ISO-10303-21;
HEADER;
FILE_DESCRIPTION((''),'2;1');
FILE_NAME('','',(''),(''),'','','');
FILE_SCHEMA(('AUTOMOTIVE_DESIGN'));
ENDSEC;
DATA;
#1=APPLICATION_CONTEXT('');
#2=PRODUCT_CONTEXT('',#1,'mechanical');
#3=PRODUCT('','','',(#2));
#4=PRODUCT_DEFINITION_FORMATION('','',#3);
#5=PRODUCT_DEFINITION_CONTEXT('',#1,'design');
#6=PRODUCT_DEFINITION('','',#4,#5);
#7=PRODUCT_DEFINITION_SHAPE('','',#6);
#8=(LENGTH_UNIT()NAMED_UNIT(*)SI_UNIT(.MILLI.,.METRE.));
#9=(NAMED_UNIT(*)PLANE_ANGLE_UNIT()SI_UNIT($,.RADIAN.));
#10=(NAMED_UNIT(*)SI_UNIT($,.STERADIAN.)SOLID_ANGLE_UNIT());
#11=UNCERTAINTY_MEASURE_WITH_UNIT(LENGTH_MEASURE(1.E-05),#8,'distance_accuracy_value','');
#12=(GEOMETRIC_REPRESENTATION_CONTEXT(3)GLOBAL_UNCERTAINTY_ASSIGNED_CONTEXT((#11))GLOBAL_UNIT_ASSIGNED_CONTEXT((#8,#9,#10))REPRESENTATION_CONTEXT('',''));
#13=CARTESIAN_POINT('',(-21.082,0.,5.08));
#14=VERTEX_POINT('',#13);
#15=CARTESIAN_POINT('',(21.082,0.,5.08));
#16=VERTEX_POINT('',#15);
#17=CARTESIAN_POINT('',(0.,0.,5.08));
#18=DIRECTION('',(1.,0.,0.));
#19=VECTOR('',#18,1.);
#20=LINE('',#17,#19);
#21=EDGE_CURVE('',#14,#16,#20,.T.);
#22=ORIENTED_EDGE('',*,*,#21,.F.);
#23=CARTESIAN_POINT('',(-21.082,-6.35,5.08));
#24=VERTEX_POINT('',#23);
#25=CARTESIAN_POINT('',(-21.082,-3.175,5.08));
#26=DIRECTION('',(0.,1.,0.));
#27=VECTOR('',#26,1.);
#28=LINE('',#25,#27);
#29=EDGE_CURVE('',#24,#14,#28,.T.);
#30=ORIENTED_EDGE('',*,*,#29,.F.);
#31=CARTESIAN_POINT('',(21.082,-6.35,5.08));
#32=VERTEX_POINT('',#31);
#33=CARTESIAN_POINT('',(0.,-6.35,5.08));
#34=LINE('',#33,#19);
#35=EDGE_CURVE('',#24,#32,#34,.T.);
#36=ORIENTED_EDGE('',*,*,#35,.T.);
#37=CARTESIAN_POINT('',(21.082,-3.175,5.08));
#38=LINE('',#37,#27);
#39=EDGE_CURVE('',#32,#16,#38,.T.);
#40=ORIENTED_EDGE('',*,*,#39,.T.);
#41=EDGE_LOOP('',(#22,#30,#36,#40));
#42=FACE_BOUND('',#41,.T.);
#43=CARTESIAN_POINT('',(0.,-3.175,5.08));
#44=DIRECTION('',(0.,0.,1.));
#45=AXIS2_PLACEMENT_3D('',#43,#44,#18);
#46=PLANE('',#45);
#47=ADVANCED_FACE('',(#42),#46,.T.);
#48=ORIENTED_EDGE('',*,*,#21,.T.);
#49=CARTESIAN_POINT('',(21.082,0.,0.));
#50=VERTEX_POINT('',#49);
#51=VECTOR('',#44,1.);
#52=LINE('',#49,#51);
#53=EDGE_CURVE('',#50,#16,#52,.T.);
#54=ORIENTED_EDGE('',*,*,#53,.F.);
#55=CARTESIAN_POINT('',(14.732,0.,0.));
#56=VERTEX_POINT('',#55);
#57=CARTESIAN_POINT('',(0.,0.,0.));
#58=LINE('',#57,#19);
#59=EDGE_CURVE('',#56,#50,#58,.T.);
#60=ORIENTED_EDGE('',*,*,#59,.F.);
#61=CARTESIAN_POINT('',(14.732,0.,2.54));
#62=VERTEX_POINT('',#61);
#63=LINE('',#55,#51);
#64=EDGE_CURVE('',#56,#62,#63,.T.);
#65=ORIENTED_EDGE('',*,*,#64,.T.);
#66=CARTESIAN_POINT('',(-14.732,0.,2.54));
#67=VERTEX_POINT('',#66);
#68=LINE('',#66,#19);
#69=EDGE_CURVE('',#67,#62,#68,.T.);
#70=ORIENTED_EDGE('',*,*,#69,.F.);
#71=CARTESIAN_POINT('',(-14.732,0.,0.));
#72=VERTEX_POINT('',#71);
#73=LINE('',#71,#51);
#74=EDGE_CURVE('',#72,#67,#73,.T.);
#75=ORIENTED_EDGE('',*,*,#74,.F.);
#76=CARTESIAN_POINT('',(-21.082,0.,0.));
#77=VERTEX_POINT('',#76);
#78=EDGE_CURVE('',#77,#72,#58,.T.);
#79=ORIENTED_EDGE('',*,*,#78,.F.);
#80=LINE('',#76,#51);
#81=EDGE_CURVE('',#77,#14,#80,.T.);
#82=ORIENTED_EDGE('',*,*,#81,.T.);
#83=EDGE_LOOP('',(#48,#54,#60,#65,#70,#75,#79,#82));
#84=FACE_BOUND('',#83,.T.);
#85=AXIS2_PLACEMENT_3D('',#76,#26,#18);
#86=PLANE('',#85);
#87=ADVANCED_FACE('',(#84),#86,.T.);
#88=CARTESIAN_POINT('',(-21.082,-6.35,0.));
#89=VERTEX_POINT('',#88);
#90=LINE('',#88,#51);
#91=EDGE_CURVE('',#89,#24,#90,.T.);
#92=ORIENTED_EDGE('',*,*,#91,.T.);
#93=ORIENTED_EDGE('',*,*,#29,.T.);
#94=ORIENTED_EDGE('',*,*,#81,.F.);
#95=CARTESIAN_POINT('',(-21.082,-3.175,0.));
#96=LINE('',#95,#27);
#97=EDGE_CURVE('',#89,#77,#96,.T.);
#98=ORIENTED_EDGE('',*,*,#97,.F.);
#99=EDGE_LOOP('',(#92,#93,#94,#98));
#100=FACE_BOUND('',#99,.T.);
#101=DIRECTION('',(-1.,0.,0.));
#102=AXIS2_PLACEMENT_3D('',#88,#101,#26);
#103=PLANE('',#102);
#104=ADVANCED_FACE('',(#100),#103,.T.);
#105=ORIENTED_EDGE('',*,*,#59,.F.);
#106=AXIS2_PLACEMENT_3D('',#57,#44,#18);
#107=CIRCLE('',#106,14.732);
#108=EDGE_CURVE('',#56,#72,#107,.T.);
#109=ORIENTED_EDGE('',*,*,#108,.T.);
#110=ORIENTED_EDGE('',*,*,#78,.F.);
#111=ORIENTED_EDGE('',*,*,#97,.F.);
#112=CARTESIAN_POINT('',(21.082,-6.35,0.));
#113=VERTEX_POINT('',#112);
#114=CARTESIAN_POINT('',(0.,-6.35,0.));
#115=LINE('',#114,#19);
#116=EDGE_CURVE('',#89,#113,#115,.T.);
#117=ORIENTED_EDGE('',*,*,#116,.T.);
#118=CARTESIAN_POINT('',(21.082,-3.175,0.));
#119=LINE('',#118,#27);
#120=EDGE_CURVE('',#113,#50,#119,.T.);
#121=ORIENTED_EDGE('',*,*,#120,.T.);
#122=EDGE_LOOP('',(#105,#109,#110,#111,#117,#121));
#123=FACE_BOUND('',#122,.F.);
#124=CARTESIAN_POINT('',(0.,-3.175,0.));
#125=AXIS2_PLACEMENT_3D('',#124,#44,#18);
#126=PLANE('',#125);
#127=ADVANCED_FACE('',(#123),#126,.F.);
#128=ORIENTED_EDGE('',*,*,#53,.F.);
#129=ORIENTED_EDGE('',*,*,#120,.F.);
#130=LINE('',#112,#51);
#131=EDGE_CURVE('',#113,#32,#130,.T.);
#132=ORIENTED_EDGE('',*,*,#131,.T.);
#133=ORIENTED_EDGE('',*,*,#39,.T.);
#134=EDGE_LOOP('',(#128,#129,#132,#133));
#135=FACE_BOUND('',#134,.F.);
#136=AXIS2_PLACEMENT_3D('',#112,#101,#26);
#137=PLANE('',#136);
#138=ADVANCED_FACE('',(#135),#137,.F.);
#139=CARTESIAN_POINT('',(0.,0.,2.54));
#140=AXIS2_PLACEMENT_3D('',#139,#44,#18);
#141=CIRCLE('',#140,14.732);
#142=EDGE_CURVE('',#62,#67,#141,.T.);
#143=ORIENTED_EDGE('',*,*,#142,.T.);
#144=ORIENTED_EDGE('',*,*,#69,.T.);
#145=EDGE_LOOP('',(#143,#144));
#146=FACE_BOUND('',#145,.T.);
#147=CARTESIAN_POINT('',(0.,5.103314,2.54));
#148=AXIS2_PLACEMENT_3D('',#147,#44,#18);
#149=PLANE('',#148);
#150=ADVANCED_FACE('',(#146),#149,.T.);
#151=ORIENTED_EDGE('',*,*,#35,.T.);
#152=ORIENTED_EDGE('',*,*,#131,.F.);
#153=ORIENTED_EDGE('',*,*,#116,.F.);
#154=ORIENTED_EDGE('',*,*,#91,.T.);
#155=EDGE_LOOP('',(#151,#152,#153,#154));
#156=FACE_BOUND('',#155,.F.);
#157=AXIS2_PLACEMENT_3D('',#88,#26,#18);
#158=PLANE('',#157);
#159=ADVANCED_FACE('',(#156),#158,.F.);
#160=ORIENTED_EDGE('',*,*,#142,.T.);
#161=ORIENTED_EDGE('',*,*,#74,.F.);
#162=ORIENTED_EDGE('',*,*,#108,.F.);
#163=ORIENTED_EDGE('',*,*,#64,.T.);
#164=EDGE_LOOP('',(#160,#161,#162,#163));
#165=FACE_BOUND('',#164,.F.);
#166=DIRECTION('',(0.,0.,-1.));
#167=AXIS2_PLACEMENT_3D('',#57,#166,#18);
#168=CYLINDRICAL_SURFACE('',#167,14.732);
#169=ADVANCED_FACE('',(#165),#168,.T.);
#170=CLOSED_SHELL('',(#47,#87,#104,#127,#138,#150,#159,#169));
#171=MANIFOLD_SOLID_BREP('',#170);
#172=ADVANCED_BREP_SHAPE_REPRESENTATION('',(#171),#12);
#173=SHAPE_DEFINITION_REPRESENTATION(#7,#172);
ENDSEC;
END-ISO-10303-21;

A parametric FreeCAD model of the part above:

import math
import FreeCAD as App
import Part
import Sketcher
from FreeCAD import Vector
Q = App.Units.Quantity


def add_polygon(sketch, points):
    """Adds a closed chain of lines whose ends are joined by coincident constraints."""
    first, n = sketch.GeometryCount, len(points)
    for a, b in zip(points, points[1:] + points[:1]):
        sketch.addGeometry(Part.LineSegment(App.Vector(*a, 0), App.Vector(*b, 0)), False)
    for i in range(n):
        sketch.addConstraint(Sketcher.Constraint("Coincident", first + i, 2, first + (i + 1) % n, 1))

doc = App.newDocument("Part")
body = doc.addObject("PartDesign::Body", "Body")

sketch1 = body.newObject("Sketcher::SketchObject", "Sketch")
sketch1.AttachmentSupport = (doc.getObject("XY_Plane"), [""])
sketch1.MapMode = "FlatFace"
sketch1.addGeometry(Part.LineSegment(Vector(-15, 0, 0), Vector(15, 0, 0)), False)
sketch1.addGeometry(Part.ArcOfCircle(Part.Circle(Vector(0, 0, 0), Vector(0, 0, 1), 15), math.radians(0), math.radians(180)), False)
sketch1.addConstraint(Sketcher.Constraint("Coincident", 0, 1, 1, 2))
sketch1.addConstraint(Sketcher.Constraint("Coincident", 1, 1, 0, 2))
sketch1.addConstraint(Sketcher.Constraint("Horizontal", 0))
sketch1.addConstraint(Sketcher.Constraint("Coincident", 1, 3, -1, 1))
sketch1.addConstraint(Sketcher.Constraint("PointOnObject", 0, 1, -1))
sketch1.addConstraint(Sketcher.Constraint("Radius", 1, Q("0.58 in")))
pad1 = body.newObject("PartDesign::Pad", "Pad")
pad1.Profile = sketch1
pad1.Length = Q("0.1 in")

sketch2 = body.newObject("Sketcher::SketchObject", "Sketch001")
sketch2.AttachmentSupport = (doc.getObject("XY_Plane"), [""])
sketch2.MapMode = "FlatFace"
add_polygon(sketch2, [(-21, 0), (-21, -6), (21, -6), (21, 0)])
sketch2.addConstraint(Sketcher.Constraint("Vertical", 0))
sketch2.addConstraint(Sketcher.Constraint("Horizontal", 1))
sketch2.addConstraint(Sketcher.Constraint("Vertical", 2))
sketch2.addConstraint(Sketcher.Constraint("Horizontal", 3))
sketch2.addConstraint(Sketcher.Constraint("Symmetric", 2, 2, 3, 2, -1, 1))
sketch2.addConstraint(Sketcher.Constraint("DistanceX", 1, 1, 1, 2, Q("1.66 in")))
sketch2.addConstraint(Sketcher.Constraint("DistanceY", 0, 2, 0, 1, Q("0.25 in")))
pad2 = body.newObject("PartDesign::Pad", "Pad001")
pad2.Profile = sketch2
pad2.Length = Q("0.2 in")

doc.recompute()
